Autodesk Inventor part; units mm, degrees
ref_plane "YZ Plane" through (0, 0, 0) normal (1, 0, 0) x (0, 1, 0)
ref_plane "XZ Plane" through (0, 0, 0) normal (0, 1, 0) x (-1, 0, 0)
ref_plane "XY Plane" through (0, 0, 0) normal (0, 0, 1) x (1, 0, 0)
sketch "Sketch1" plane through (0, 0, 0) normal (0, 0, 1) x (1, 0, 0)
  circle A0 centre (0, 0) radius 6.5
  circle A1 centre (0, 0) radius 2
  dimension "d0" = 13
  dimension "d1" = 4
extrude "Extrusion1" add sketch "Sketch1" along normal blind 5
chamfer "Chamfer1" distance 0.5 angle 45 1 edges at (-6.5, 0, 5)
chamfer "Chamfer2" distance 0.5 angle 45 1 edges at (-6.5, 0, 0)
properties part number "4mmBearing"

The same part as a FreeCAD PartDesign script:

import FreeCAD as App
import Part
import Sketcher
from FreeCAD import Vector


def edges_at(feature, points):
    """Names of the edges that pass closest to the given points."""
    edges = feature.Shape.Edges
    near = lambda p: min(range(len(edges)), key=lambda i: edges[i].distToShape(Part.Vertex(*p))[0])
    return sorted({f"Edge{near(p) + 1}" for p in points})

doc = App.newDocument("Part")
body = doc.addObject("PartDesign::Body", "Body")

# Sketch on XY plane
sketch1 = body.newObject("Sketcher::SketchObject", "Sketch")
sketch1.AttachmentSupport = (doc.getObject("XY_Plane"), [""])
sketch1.MapMode = "FlatFace"
sketch1.addGeometry([
    Part.Circle(Vector(0, 0, 0), Vector(0, 0, 1), 6.5),
    Part.Circle(Vector(0, 0, 0), Vector(0, 0, 1), 2),
], False)
sketch1.addConstraint([
    Sketcher.Constraint("Coincident", 0, 3, -1, 1),
    Sketcher.Constraint("Coincident", 1, 3, -1, 1),
    Sketcher.Constraint("Diameter", 0, 13.0),
    Sketcher.Constraint("Diameter", 1, 4.0),
])
pad1 = body.newObject("PartDesign::Pad", "Pad")
pad1.Profile = sketch1
pad1.Length = 5
doc.recompute()

chamfer = body.newObject("PartDesign::Chamfer", "Chamfer")
chamfer.Base = (pad1, edges_at(pad1, [(-6.5, 0, 5)]))
chamfer.Size = 0.5
doc.recompute()

chamfer2 = body.newObject("PartDesign::Chamfer", "Chamfer001")
chamfer2.Base = (chamfer, edges_at(chamfer, [(-6.5, 0, 0)]))
chamfer2.Size = 0.5

doc.recompute()
